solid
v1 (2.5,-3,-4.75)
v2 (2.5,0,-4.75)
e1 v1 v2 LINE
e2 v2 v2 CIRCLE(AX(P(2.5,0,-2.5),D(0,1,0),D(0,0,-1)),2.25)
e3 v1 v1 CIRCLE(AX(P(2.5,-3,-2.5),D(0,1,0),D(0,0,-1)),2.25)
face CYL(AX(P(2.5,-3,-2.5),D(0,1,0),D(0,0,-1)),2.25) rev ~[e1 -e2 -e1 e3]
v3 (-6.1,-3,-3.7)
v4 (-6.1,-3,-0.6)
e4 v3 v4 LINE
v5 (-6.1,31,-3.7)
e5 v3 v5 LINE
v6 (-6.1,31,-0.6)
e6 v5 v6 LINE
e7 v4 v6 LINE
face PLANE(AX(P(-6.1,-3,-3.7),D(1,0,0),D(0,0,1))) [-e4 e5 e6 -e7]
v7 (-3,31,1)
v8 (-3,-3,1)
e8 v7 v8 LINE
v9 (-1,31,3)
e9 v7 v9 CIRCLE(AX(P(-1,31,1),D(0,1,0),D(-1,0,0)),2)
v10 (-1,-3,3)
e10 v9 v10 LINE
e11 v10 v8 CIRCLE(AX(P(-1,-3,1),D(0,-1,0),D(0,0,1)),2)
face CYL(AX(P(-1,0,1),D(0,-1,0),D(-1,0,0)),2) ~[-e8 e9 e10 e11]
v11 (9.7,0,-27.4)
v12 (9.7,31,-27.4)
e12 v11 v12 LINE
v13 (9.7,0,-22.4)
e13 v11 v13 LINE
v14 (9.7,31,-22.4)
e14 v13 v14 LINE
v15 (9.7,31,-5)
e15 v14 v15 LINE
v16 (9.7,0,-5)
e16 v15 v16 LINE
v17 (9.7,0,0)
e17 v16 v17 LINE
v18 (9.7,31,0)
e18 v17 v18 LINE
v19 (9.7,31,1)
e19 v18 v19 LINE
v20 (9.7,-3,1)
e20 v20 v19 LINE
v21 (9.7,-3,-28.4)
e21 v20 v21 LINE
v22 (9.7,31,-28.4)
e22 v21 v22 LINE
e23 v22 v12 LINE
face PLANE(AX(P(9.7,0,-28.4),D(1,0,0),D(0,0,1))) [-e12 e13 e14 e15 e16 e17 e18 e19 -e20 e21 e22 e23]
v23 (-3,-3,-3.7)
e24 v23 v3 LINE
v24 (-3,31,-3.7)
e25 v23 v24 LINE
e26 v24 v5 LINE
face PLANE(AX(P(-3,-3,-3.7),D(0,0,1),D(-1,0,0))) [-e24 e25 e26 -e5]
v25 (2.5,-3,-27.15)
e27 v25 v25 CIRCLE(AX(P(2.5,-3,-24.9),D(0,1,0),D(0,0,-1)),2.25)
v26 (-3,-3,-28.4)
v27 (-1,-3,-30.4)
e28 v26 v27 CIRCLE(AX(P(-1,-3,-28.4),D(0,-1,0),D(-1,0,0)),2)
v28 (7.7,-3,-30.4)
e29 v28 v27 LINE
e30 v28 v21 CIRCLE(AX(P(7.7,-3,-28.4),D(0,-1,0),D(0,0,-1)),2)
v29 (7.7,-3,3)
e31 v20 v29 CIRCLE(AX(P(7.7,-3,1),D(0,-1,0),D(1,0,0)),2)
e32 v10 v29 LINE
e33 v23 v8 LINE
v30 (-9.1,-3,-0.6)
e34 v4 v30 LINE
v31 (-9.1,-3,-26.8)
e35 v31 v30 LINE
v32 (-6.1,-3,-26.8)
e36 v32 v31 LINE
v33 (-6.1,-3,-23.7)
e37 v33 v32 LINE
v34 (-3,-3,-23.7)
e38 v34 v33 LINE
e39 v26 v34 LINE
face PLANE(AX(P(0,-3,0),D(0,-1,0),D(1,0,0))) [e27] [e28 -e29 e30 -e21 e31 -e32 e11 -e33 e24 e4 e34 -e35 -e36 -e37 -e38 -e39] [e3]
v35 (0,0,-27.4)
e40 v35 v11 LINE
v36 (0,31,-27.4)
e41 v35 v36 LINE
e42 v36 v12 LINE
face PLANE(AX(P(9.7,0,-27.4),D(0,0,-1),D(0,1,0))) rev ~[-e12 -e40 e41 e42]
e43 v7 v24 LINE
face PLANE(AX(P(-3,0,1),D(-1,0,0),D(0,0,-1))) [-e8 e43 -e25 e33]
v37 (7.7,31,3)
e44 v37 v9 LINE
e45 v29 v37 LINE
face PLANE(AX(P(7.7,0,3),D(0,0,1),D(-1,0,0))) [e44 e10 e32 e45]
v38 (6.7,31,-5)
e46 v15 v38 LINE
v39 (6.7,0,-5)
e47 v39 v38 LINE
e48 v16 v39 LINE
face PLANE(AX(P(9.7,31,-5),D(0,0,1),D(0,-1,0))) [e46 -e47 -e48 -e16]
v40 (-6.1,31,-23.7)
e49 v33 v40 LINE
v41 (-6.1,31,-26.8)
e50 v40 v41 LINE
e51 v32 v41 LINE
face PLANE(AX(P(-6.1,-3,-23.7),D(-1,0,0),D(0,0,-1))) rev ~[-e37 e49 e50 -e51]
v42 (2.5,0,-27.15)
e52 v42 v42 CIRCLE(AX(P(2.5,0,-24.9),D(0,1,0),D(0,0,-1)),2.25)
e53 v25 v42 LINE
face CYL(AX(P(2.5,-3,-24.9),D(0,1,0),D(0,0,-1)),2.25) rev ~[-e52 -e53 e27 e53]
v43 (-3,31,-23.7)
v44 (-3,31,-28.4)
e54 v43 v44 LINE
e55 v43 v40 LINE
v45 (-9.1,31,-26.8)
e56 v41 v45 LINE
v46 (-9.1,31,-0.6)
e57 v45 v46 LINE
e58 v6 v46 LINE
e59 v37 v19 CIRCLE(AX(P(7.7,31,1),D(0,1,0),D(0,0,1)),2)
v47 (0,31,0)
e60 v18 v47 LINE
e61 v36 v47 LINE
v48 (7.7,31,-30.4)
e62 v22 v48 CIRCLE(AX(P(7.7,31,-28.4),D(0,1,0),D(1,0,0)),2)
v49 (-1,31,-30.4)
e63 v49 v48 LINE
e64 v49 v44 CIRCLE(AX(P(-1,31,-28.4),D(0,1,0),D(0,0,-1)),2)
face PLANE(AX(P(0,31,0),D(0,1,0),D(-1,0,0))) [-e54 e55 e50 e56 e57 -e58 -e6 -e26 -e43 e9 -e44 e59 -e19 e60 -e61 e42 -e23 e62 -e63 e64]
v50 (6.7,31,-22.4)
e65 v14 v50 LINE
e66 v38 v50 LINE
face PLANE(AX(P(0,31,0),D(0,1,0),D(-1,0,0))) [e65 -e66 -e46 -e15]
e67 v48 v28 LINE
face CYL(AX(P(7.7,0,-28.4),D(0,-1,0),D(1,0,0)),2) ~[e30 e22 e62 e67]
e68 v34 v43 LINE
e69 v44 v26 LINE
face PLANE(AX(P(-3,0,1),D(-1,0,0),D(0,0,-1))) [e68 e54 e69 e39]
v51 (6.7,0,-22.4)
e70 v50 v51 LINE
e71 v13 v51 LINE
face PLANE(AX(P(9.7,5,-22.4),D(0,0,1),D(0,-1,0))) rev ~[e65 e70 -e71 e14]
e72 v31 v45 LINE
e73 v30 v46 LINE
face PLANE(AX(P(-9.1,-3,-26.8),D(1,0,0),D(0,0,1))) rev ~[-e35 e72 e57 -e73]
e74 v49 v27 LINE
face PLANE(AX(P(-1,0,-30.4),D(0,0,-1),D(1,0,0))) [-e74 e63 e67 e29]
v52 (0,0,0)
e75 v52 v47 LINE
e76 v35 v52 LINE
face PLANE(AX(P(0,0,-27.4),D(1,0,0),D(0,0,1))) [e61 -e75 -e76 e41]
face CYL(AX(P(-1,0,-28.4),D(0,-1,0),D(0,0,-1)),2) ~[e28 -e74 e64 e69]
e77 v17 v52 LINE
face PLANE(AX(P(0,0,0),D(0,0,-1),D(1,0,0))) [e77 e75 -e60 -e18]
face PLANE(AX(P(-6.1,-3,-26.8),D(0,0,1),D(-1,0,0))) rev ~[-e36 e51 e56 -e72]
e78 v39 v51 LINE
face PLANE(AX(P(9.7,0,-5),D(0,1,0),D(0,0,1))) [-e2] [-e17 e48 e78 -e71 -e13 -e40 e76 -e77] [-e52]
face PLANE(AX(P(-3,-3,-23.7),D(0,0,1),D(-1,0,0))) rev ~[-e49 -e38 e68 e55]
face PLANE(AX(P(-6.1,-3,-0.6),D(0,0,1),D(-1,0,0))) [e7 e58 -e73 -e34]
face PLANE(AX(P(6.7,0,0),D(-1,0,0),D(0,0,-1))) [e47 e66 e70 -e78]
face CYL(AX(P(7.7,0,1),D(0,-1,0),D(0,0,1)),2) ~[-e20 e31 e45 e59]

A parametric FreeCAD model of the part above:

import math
import FreeCAD as App
import Part
import Sketcher
Q = App.Units.Quantity


def add_polygon(sketch, points):
    """Adds a closed chain of lines whose ends are joined by coincident constraints."""
    first, n = sketch.GeometryCount, len(points)
    for a, b in zip(points, points[1:] + points[:1]):
        sketch.addGeometry(Part.LineSegment(App.Vector(*a, 0), App.Vector(*b, 0)), False)
    for i in range(n):
        sketch.addConstraint(Sketcher.Constraint("Coincident", first + i, 2, first + (i + 1) % n, 1))

doc = App.newDocument("Part")
body = doc.addObject("PartDesign::Body", "Body")

# Sketch on XZ plane
sketch1 = body.newObject("Sketcher::SketchObject", "Sketch")
sketch1.AttachmentSupport = (doc.getObject("XZ_Plane"), [""])
sketch1.MapMode = "FlatFace"
sketch1.addGeometry(Part.LineSegment(App.Vector(-1, 3, 0), App.Vector(7.7, 3, 0)), False)  # 0
sketch1.addGeometry(Part.ArcOfCircle(Part.Circle(App.Vector(7.7, 1, 0), App.Vector(0, 0, 1), 2), math.radians(0), math.radians(90)), False)  # 1
sketch1.addGeometry(Part.LineSegment(App.Vector(9.7, 1, 0), App.Vector(9.7, -28.4, 0)), False)  # 2
sketch1.addGeometry(Part.ArcOfCircle(Part.Circle(App.Vector(7.7, -28.4, 0), App.Vector(0, 0, 1), 2), math.radians(-90), math.radians(0)), False)  # 3
sketch1.addGeometry(Part.LineSegment(App.Vector(7.7, -30.4, 0), App.Vector(-1, -30.4, 0)), False)  # 4
sketch1.addGeometry(Part.ArcOfCircle(Part.Circle(App.Vector(-1, -28.4, 0), App.Vector(0, 0, 1), 2), math.radians(180), math.radians(270)), False)  # 5
sketch1.addGeometry(Part.LineSegment(App.Vector(-3, -28.4, 0), App.Vector(-3, 1, 0)), False)  # 6
sketch1.addGeometry(Part.ArcOfCircle(Part.Circle(App.Vector(-1, 1, 0), App.Vector(0, 0, 1), 2), math.radians(90), math.radians(180)), False)  # 7
add_polygon(sketch1, [(6.7, 0), (0, 0), (0, -27.4), (6.7, -27.4)])  # lines 8-11
sketch1.addConstraint([
    Sketcher.Constraint("Tangent", 0, 2, 1, 2),
    Sketcher.Constraint("Tangent", 1, 1, 2, 1),
    Sketcher.Constraint("Tangent", 2, 2, 3, 2),
    Sketcher.Constraint("Tangent", 3, 1, 4, 1),
    Sketcher.Constraint("Tangent", 4, 2, 5, 2),
    Sketcher.Constraint("Tangent", 5, 1, 6, 1),
    Sketcher.Constraint("Tangent", 6, 2, 7, 2),
    Sketcher.Constraint("Tangent", 7, 1, 0, 1),
    Sketcher.Constraint("Horizontal", 0),
    Sketcher.Constraint("Vertical", 2),
    Sketcher.Constraint("Horizontal", 4),
    Sketcher.Constraint("Vertical", 6),
    Sketcher.Constraint("Horizontal", 8),
    Sketcher.Constraint("Vertical", 9),
    Sketcher.Constraint("Horizontal", 10),
    Sketcher.Constraint("Vertical", 11),
    Sketcher.Constraint("Coincident", 8, 2, -1, 1),
    Sketcher.Constraint("Equal", 1, 3),
    Sketcher.Constraint("Equal", 3, 5),
    Sketcher.Constraint("Equal", 5, 7),
    Sketcher.Constraint("Radius", 1, Q("2 mm")),
    Sketcher.Constraint("DistanceX", 8, 2, 8, 1, Q("6.7 mm")),
    Sketcher.Constraint("DistanceY", 9, 2, 9, 1, Q("27.4 mm")),
    Sketcher.Constraint("DistanceY", -1, 1, 0, 2, Q("3 mm")),
    Sketcher.Constraint("DistanceX", 5, 1, -1, 1, Q("3 mm")),
    Sketcher.Constraint("DistanceY", 4, 2, 9, 2, Q("3 mm")),
    Sketcher.Constraint("DistanceX", 10, 2, 2, 2, Q("3 mm")),
])
pad1 = body.newObject("PartDesign::Pad", "Pad")
pad1.Profile = sketch1
pad1.Length = 31
pad1.Reversed = True

# Sketch on XZ plane
sketch2 = body.newObject("Sketcher::SketchObject", "Sketch001")
sketch2.AttachmentSupport = (doc.getObject("XZ_Plane"), [""])
sketch2.MapMode = "FlatFace"
sketch2.addGeometry([
    Part.LineSegment(App.Vector(9.7, -28.4, 0), App.Vector(9.7, 1, 0)),  # 0
    Part.ArcOfCircle(Part.Circle(App.Vector(7.7, 1, 0), App.Vector(0, 0, 1), 2), math.radians(0), math.radians(90)),  # 1
    Part.LineSegment(App.Vector(7.7, 3, 0), App.Vector(-1, 3, 0)),  # 2
    Part.ArcOfCircle(Part.Circle(App.Vector(-1, 1, 0), App.Vector(0, 0, 1), 2), math.radians(90), math.radians(180)),  # 3
    Part.LineSegment(App.Vector(-3, 1, 0), App.Vector(-3, -28.4, 0)),  # 4
    Part.ArcOfCircle(Part.Circle(App.Vector(-1, -28.4, 0), App.Vector(0, 0, 1), 2), math.radians(180), math.radians(270)),  # 5
    Part.LineSegment(App.Vector(-1, -30.4, 0), App.Vector(7.7, -30.4, 0)),  # 6
    Part.ArcOfCircle(Part.Circle(App.Vector(7.7, -28.4, 0), App.Vector(0, 0, 1), 2), math.radians(-90), math.radians(0)),  # 7
], False)
sketch2.addConstraint([
    Sketcher.Constraint("Tangent", 0, 2, 1, 1),
    Sketcher.Constraint("Tangent", 1, 2, 2, 1),
    Sketcher.Constraint("Tangent", 2, 2, 3, 1),
    Sketcher.Constraint("Tangent", 3, 2, 4, 1),
    Sketcher.Constraint("Tangent", 4, 2, 5, 1),
    Sketcher.Constraint("Tangent", 5, 2, 6, 1),
    Sketcher.Constraint("Tangent", 6, 2, 7, 1),
    Sketcher.Constraint("Tangent", 7, 2, 0, 1),
    Sketcher.Constraint("Vertical", 0),
    Sketcher.Constraint("Horizontal", 2),
    Sketcher.Constraint("Vertical", 4),
    Sketcher.Constraint("Horizontal", 6),
    Sketcher.Constraint("Equal", 1, 3),
    Sketcher.Constraint("Equal", 3, 5),
    Sketcher.Constraint("Equal", 5, 7),
    Sketcher.Constraint("Radius", 1, Q("2 mm")),
    Sketcher.Constraint("DistanceX", 2, 2, 2, 1, Q("8.7 mm")),
    Sketcher.Constraint("DistanceY", 0, 1, 0, 2, Q("29.4 mm")),
    Sketcher.Constraint("DistanceY", -1, 1, 1, 3, Q("1 mm")),
    Sketcher.Constraint("DistanceX", 3, 3, -1, 1, Q("1 mm")),
])
pad2 = body.newObject("PartDesign::Pad", "Pad001")
pad2.Profile = sketch2
pad2.Length = 3

# Sketch on YZ plane
sketch3 = body.newObject("Sketcher::SketchObject", "Sketch002")
sketch3.AttachmentSupport = (doc.getObject("YZ_Plane"), [""])
sketch3.MapMode = "FlatFace"
sketch3.AttachmentOffset = App.Placement(App.Vector(0, 0, 9.7), App.Rotation())
add_polygon(sketch3, [(0, -27.4), (31, -27.4), (31, -22.4), (0, -22.4)])  # lines 0-3
add_polygon(sketch3, [(31, -5), (31, 0), (0, 0), (0, -5)])  # lines 4-7
sketch3.addConstraint([
    Sketcher.Constraint("Horizontal", 0),
    Sketcher.Constraint("Vertical", 1),
    Sketcher.Constraint("Horizontal", 2),
    Sketcher.Constraint("Vertical", 3),
    Sketcher.Constraint("Vertical", 4),
    Sketcher.Constraint("Horizontal", 5),
    Sketcher.Constraint("Vertical", 6),
    Sketcher.Constraint("Horizontal", 7),
    Sketcher.Constraint("Coincident", 5, 2, -1, 1),
    Sketcher.Constraint("PointOnObject", 2, 2, -2),
    Sketcher.Constraint("Vertical", 1, 2, 4, 2),
    Sketcher.Constraint("Equal", 3, 4),
    Sketcher.Constraint("DistanceY", 1, 1, 1, 2, Q("5 mm")),
    Sketcher.Constraint("DistanceX", 0, 1, 0, 2, Q("31 mm")),
    Sketcher.Constraint("DistanceY", 0, 2, -1, 1, Q("27.4 mm")),
])
pocket1 = body.newObject("PartDesign::Pocket", "Pocket")
pocket1.Profile = sketch3
pocket1.Length = 3

# Sketch on XZ plane
sketch4 = body.newObject("Sketcher::SketchObject", "Sketch003")
sketch4.AttachmentSupport = (doc.getObject("XZ_Plane"), [""])
sketch4.MapMode = "FlatFace"
sketch4.AttachmentOffset = App.Placement(App.Vector(0, 0, 3), App.Rotation())
add_polygon(sketch4, [(-3, -23.7), (-3, -3.7), (-6.1, -3.7), (-6.1, -0.6), (-9.1, -0.6), (-9.1, -26.8), (-6.1, -26.8), (-6.1, -23.7)])  # lines 0-7
sketch4.addConstraint([
    Sketcher.Constraint("Vertical", 0),
    Sketcher.Constraint("Horizontal", 1),
    Sketcher.Constraint("Vertical", 2),
    Sketcher.Constraint("Horizontal", 3),
    Sketcher.Constraint("Vertical", 4),
    Sketcher.Constraint("Horizontal", 5),
    Sketcher.Constraint("Vertical", 6),
    Sketcher.Constraint("Horizontal", 7),
    Sketcher.Constraint("Vertical", 2, 2, 5, 2),
    Sketcher.Constraint("Equal", 7, 2),
    Sketcher.Constraint("Equal", 2, 6),
    Sketcher.Constraint("DistanceX", 3, 2, 3, 1, Q("3 mm")),
    Sketcher.Constraint("DistanceX", 1, 2, 1, 1, Q("3.1 mm")),
    Sketcher.Constraint("DistanceX", 0, 2, -1, 1, Q("3 mm")),
    Sketcher.Constraint("DistanceY", 0, 1, 0, 2, Q("20 mm")),
    Sketcher.Constraint("DistanceY", 0, 2, -1, 1, Q("3.7 mm")),
])
pad3 = body.newObject("PartDesign::Pad", "Pad002")
pad3.Profile = sketch4
pad3.Length = 34
pad3.Reversed = True

# Sketch on XZ plane
sketch5 = body.newObject("Sketcher::SketchObject", "Sketch004")
sketch5.AttachmentSupport = (doc.getObject("XZ_Plane"), [""])
sketch5.MapMode = "FlatFace"
sketch5.AttachmentOffset = App.Placement(App.Vector(0, 0, 3), App.Rotation())
sketch5.addGeometry([
    Part.Circle(App.Vector(2.5, -2.5, 0), App.Vector(0, 0, 1), 2.25),
    Part.Circle(App.Vector(2.5, -24.9, 0), App.Vector(0, 0, 1), 2.25),
], False)
sketch5.addConstraint([
    Sketcher.Constraint("Equal", 0, 1),
    Sketcher.Constraint("Vertical", 0, 3, 1, 3),
    Sketcher.Constraint("Diameter", 0, Q("4.5 mm")),
    Sketcher.Constraint("DistanceX", -1, 1, 0, 3, Q("2.5 mm")),
    Sketcher.Constraint("DistanceY", 0, 3, -1, 1, Q("2.5 mm")),
    Sketcher.Constraint("DistanceY", 1, 3, -1, 1, Q("24.9 mm")),
])
doc.recompute()
hole = body.newObject("PartDesign::Hole", "Hole")
hole.Profile = sketch5
hole.ThreadType = "None"
hole.Diameter = 4.5
hole.DepthType = "ThroughAll"

doc.recompute()
